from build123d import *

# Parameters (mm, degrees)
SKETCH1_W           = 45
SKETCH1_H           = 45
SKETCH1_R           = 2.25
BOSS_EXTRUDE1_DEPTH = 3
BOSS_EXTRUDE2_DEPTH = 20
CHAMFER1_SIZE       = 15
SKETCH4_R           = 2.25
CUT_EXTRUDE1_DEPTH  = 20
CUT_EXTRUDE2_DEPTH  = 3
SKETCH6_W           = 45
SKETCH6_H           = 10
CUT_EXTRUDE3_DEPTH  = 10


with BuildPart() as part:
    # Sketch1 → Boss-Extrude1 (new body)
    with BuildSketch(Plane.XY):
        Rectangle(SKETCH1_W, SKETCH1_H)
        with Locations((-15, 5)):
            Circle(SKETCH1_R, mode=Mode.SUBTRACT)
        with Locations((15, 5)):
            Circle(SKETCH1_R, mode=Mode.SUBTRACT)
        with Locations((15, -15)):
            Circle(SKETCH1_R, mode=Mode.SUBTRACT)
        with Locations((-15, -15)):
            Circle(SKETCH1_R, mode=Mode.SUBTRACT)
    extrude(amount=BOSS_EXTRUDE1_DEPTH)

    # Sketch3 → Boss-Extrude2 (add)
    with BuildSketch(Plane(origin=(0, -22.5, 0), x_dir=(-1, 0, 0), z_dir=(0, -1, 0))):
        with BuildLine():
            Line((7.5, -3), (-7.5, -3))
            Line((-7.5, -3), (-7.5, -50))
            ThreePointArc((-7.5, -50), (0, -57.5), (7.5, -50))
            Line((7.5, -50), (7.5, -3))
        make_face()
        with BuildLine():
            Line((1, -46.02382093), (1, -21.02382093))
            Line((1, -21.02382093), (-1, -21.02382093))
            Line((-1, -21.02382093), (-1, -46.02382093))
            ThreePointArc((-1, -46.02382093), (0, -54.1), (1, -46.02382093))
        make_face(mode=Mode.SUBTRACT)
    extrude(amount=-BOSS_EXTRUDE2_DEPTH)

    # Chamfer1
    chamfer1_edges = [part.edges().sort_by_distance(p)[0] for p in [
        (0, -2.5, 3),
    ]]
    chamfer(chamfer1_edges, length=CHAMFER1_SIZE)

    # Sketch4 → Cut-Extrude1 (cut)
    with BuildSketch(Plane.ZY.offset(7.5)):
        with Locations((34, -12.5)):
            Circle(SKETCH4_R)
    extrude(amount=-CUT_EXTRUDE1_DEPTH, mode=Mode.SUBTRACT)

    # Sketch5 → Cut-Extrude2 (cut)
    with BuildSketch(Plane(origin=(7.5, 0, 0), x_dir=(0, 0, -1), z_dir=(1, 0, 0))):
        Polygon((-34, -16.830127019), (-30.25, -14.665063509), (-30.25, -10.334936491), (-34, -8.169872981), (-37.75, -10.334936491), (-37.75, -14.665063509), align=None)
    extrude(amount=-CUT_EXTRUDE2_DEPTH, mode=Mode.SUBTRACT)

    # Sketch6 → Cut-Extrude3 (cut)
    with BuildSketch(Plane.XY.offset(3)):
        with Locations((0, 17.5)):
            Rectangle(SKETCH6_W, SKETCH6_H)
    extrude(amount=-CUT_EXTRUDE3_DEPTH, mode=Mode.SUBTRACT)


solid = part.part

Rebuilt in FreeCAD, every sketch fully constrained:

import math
import FreeCAD as App
import Part
import Sketcher
from FreeCAD import Vector
Q = App.Units.Quantity


def edges_at(feature, points):
    """Names of the edges that pass closest to the given points."""
    edges = feature.Shape.Edges
    near = lambda p: min(range(len(edges)), key=lambda i: edges[i].distToShape(Part.Vertex(*p))[0])
    return sorted({f"Edge{near(p) + 1}" for p in points})

doc = App.newDocument("Part")
body = doc.addObject("PartDesign::Body", "Body")

# Sketch on XY plane
sketch1 = body.newObject("Sketcher::SketchObject", "Sketch")
sketch1.AttachmentSupport = (doc.getObject("XY_Plane"), [""])
sketch1.MapMode = "FlatFace"
sketch1.addGeometry(Part.LineSegment(Vector(-22.5, 22.5, 0), Vector(-22.5, -22.5, 0)), False)
sketch1.addGeometry(Part.LineSegment(Vector(-22.5, -22.5, 0), Vector(22.5, -22.5, 0)), False)
sketch1.addGeometry(Part.LineSegment(Vector(22.5, -22.5, 0), Vector(22.5, 22.5, 0)), False)
sketch1.addGeometry(Part.LineSegment(Vector(22.5, 22.5, 0), Vector(-22.5, 22.5, 0)), False)
sketch1.addGeometry(Part.Circle(Vector(-15, -15, 0), Vector(0, 0, 1), 2.25), False)
sketch1.addGeometry(Part.Circle(Vector(15, -15, 0), Vector(0, 0, 1), 2.25), False)
sketch1.addGeometry(Part.Circle(Vector(-15, 5, 0), Vector(0, 0, 1), 2.25), False)
sketch1.addGeometry(Part.Circle(Vector(15, 5, 0), Vector(0, 0, 1), 2.25), False)
sketch1.addConstraint(Sketcher.Constraint("Coincident", 0, 2, 1, 1))
sketch1.addConstraint(Sketcher.Constraint("Coincident", 1, 2, 2, 1))
sketch1.addConstraint(Sketcher.Constraint("Coincident", 2, 2, 3, 1))
sketch1.addConstraint(Sketcher.Constraint("Coincident", 3, 2, 0, 1))
sketch1.addConstraint(Sketcher.Constraint("Vertical", 0))
sketch1.addConstraint(Sketcher.Constraint("Horizontal", 1))
sketch1.addConstraint(Sketcher.Constraint("Vertical", 2))
sketch1.addConstraint(Sketcher.Constraint("Horizontal", 3))
sketch1.addConstraint(Sketcher.Constraint("Equal", 4, 5))
sketch1.addConstraint(Sketcher.Constraint("Equal", 5, 6))
sketch1.addConstraint(Sketcher.Constraint("Equal", 6, 7))
sketch1.addConstraint(Sketcher.Constraint("Symmetric", 0, 2, 2, 2, -1, 1))
sketch1.addConstraint(Sketcher.Constraint("Symmetric", 4, 3, 5, 3, -2))
sketch1.addConstraint(Sketcher.Constraint("Symmetric", 6, 3, 7, 3, -2))
sketch1.addConstraint(Sketcher.Constraint("Vertical", 4, 3, 6, 3))
sketch1.addConstraint(Sketcher.Constraint("Equal", 3, 0))
sketch1.addConstraint(Sketcher.Constraint("Diameter", 4, 4.5))
sketch1.addConstraint(Sketcher.Constraint("DistanceX", 1, 1, 1, 2, 45.0))
sketch1.addConstraint(Sketcher.Constraint("DistanceX", 4, 3, -1, 1, 15.0))
sketch1.addConstraint(Sketcher.Constraint("DistanceY", 4, 3, -1, 1, 15.0))
sketch1.addConstraint(Sketcher.Constraint("DistanceY", -1, 1, 6, 3, 5.0))
pad1 = body.newObject("PartDesign::Pad", "Pad")
pad1.Profile = sketch1
pad1.Length = 3

# Sketch on XZ plane
sketch2 = body.newObject("Sketcher::SketchObject", "Sketch001")
sketch2.AttachmentSupport = (doc.getObject("XZ_Plane"), [""])
sketch2.MapMode = "FlatFace"
sketch2.AttachmentOffset = App.Placement(Vector(0, 0, 22.5), App.Rotation())
sketch2.addGeometry(Part.LineSegment(Vector(-7.5, 3, 0), Vector(7.5, 3, 0)), False)
sketch2.addGeometry(Part.LineSegment(Vector(7.5, 3, 0), Vector(7.5, 50, 0)), False)
sketch2.addGeometry(Part.ArcOfCircle(Part.Circle(Vector(0, 50, 0), Vector(0, 0, 1), 7.5), math.radians(0), math.radians(180)), False)
sketch2.addGeometry(Part.LineSegment(Vector(-7.5, 50, 0), Vector(-7.5, 3, 0)), False)
sketch2.addGeometry(Part.LineSegment(Vector(-1, 21.023821, 0), Vector(-1, 46.023821, 0)), False)
sketch2.addGeometry(Part.ArcOfCircle(Part.Circle(Vector(0, 50, 0), Vector(0, 0, 1), 4.1), math.radians(-75.883019), math.radians(255.883019)), False)
sketch2.addGeometry(Part.LineSegment(Vector(1, 46.023821, 0), Vector(1, 21.023821, 0)), False)
sketch2.addGeometry(Part.LineSegment(Vector(1, 21.023821, 0), Vector(-1, 21.023821, 0)), False)
sketch2.addConstraint(Sketcher.Constraint("Coincident", 0, 2, 1, 1))
sketch2.addConstraint(Sketcher.Constraint("Tangent", 1, 2, 2, 1))
sketch2.addConstraint(Sketcher.Constraint("Tangent", 2, 2, 3, 1))
sketch2.addConstraint(Sketcher.Constraint("Coincident", 3, 2, 0, 1))
sketch2.addConstraint(Sketcher.Constraint("Coincident", 4, 2, 5, 2))
sketch2.addConstraint(Sketcher.Constraint("Coincident", 5, 1, 6, 1))
sketch2.addConstraint(Sketcher.Constraint("Coincident", 6, 2, 7, 1))
sketch2.addConstraint(Sketcher.Constraint("Coincident", 7, 2, 4, 1))
sketch2.addConstraint(Sketcher.Constraint("Horizontal", 0))
sketch2.addConstraint(Sketcher.Constraint("Vertical", 1))
sketch2.addConstraint(Sketcher.Constraint("Vertical", 3))
sketch2.addConstraint(Sketcher.Constraint("Vertical", 4))
sketch2.addConstraint(Sketcher.Constraint("Vertical", 6))
sketch2.addConstraint(Sketcher.Constraint("Horizontal", 7))
sketch2.addConstraint(Sketcher.Constraint("Coincident", 5, 3, 2, 3))
sketch2.addConstraint(Sketcher.Constraint("Symmetric", 4, 2, 5, 1, -2))
sketch2.addConstraint(Sketcher.Constraint("Radius", 2, 7.5))
sketch2.addConstraint(Sketcher.Constraint("Radius", 5, 4.1))
sketch2.addConstraint(Sketcher.Constraint("DistanceX", 7, 2, 7, 1, 2.0))
sketch2.addConstraint(Sketcher.Constraint("DistanceY", 1, 1, 1, 2, 47.0))
sketch2.addConstraint(Sketcher.Constraint("DistanceY", 4, 1, 4, 2, 25.0))
sketch2.addConstraint(Sketcher.Constraint("DistanceY", -1, 1, 2, 3, 50.0))
pad2 = body.newObject("PartDesign::Pad", "Pad001")
pad2.Profile = sketch2
pad2.Length = 20
pad2.Reversed = True
doc.recompute()

chamfer = body.newObject("PartDesign::Chamfer", "Chamfer")
chamfer.Base = (pad2, edges_at(pad2, [(0, -2.5, 3)]))
chamfer.Size = 15

# Sketch on YZ plane
sketch3 = body.newObject("Sketcher::SketchObject", "Sketch002")
sketch3.AttachmentSupport = (doc.getObject("YZ_Plane"), [""])
sketch3.MapMode = "FlatFace"
sketch3.AttachmentOffset = App.Placement(Vector(0, 0, -7.5), App.Rotation())
sketch3.addGeometry(Part.Circle(Vector(-12.5, 34, 0), Vector(0, 0, 1), 2.25), False)
sketch3.addConstraint(Sketcher.Constraint("Diameter", 0, 4.5))
sketch3.addConstraint(Sketcher.Constraint("DistanceY", -1, 1, 0, 3, 34.0))
sketch3.addConstraint(Sketcher.Constraint("DistanceX", 0, 3, -1, 1, 12.5))
pocket1 = body.newObject("PartDesign::Pocket", "Pocket")
pocket1.Profile = sketch3
pocket1.Length = 20
pocket1.Reversed = True

# Sketch on YZ plane
sketch4 = body.newObject("Sketcher::SketchObject", "Sketch003")
sketch4.AttachmentSupport = (doc.getObject("YZ_Plane"), [""])
sketch4.MapMode = "FlatFace"
sketch4.AttachmentOffset = App.Placement(Vector(0, 0, 7.5), App.Rotation())
sketch4.addGeometry(Part.LineSegment(Vector(-16.830127, 34, 0), Vector(-14.665064, 30.25, 0)), False)
sketch4.addGeometry(Part.LineSegment(Vector(-14.665064, 30.25, 0), Vector(-10.334936, 30.25, 0)), False)
sketch4.addGeometry(Part.LineSegment(Vector(-10.334936, 30.25, 0), Vector(-8.169873, 34, 0)), False)
sketch4.addGeometry(Part.LineSegment(Vector(-8.169873, 34, 0), Vector(-10.334936, 37.75, 0)), False)
sketch4.addGeometry(Part.LineSegment(Vector(-10.334936, 37.75, 0), Vector(-14.665064, 37.75, 0)), False)
sketch4.addGeometry(Part.LineSegment(Vector(-14.665064, 37.75, 0), Vector(-16.830127, 34, 0)), False)
sketch4.addConstraint(Sketcher.Constraint("Coincident", 0, 2, 1, 1))
sketch4.addConstraint(Sketcher.Constraint("Coincident", 1, 2, 2, 1))
sketch4.addConstraint(Sketcher.Constraint("Coincident", 2, 2, 3, 1))
sketch4.addConstraint(Sketcher.Constraint("Coincident", 3, 2, 4, 1))
sketch4.addConstraint(Sketcher.Constraint("Coincident", 4, 2, 5, 1))
sketch4.addConstraint(Sketcher.Constraint("Coincident", 5, 2, 0, 1))
sketch4.addConstraint(Sketcher.Constraint("Horizontal", 1))
sketch4.addConstraint(Sketcher.Constraint("Horizontal", 4))
sketch4.addConstraint(Sketcher.Constraint("Parallel", 0, 3))
sketch4.addConstraint(Sketcher.Constraint("Parallel", 2, 5))
sketch4.addConstraint(Sketcher.Constraint("Horizontal", 2, 2, 5, 2))
sketch4.addConstraint(Sketcher.Constraint("Vertical", 1, 2, 3, 2))
sketch4.addConstraint(Sketcher.Constraint("Vertical", 0, 2, 4, 2))
sketch4.addConstraint(Sketcher.Constraint("Angle", 0, Q("-60 deg")))
sketch4.addConstraint(Sketcher.Constraint("DistanceY", -1, 1, 2, 2, 34.0))
sketch4.addConstraint(Sketcher.Constraint("DistanceY", 1, 2, 3, 2, 7.5))
sketch4.addConstraint(Sketcher.Constraint("DistanceX", 1, 1, 1, 2, 4.330127))
sketch4.addConstraint(Sketcher.Constraint("DistanceX", 0, 2, -1, 1, 14.665064))
pocket2 = body.newObject("PartDesign::Pocket", "Pocket001")
pocket2.Profile = sketch4
pocket2.Length = 3

# Sketch on XY plane
sketch5 = body.newObject("Sketcher::SketchObject", "Sketch004")
sketch5.AttachmentSupport = (doc.getObject("XY_Plane"), [""])
sketch5.MapMode = "FlatFace"
sketch5.AttachmentOffset = App.Placement(Vector(0, 0, 3), App.Rotation())
sketch5.addGeometry(Part.LineSegment(Vector(-22.5, 22.5, 0), Vector(-22.5, 12.5, 0)), False)
sketch5.addGeometry(Part.LineSegment(Vector(-22.5, 12.5, 0), Vector(22.5, 12.5, 0)), False)
sketch5.addGeometry(Part.LineSegment(Vector(22.5, 12.5, 0), Vector(22.5, 22.5, 0)), False)
sketch5.addGeometry(Part.LineSegment(Vector(22.5, 22.5, 0), Vector(-22.5, 22.5, 0)), False)
sketch5.addConstraint(Sketcher.Constraint("Coincident", 0, 2, 1, 1))
sketch5.addConstraint(Sketcher.Constraint("Coincident", 1, 2, 2, 1))
sketch5.addConstraint(Sketcher.Constraint("Coincident", 2, 2, 3, 1))
sketch5.addConstraint(Sketcher.Constraint("Coincident", 3, 2, 0, 1))
sketch5.addConstraint(Sketcher.Constraint("Vertical", 0))
sketch5.addConstraint(Sketcher.Constraint("Horizontal", 1))
sketch5.addConstraint(Sketcher.Constraint("Vertical", 2))
sketch5.addConstraint(Sketcher.Constraint("Horizontal", 3))
sketch5.addConstraint(Sketcher.Constraint("DistanceX", 1, 1, 1, 2, 45.0))
sketch5.addConstraint(Sketcher.Constraint("DistanceY", 0, 2, 0, 1, 10.0))
sketch5.addConstraint(Sketcher.Constraint("DistanceX", 0, 2, -1, 1, 22.5))
sketch5.addConstraint(Sketcher.Constraint("DistanceY", -1, 1, 0, 2, 12.5))
pocket3 = body.newObject("PartDesign::Pocket", "Pocket002")
pocket3.Profile = sketch5
pocket3.Length = 10

doc.recompute()
